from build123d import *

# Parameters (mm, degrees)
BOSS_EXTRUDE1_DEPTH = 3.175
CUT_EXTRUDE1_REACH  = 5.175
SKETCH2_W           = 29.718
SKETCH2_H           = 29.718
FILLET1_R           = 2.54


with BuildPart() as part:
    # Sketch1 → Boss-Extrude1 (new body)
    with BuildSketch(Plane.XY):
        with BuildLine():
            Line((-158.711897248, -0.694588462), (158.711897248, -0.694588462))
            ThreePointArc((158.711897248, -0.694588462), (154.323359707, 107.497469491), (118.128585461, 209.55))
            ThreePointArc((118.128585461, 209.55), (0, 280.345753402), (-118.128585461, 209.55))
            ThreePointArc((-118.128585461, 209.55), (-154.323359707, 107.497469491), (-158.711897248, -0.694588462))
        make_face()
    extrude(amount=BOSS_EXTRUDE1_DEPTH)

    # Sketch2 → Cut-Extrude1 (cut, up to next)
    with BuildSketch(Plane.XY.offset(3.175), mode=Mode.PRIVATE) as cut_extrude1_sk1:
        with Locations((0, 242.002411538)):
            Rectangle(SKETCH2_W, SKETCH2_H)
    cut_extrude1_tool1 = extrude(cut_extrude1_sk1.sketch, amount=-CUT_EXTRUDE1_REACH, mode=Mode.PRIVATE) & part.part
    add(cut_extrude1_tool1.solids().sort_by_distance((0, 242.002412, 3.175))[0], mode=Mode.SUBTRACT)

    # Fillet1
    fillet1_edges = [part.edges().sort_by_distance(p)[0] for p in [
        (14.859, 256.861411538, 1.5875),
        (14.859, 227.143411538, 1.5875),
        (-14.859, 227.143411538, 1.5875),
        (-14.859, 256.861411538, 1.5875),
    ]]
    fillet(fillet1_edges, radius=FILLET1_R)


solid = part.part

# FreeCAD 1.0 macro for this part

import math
import FreeCAD as App
import Part
import Sketcher

V = App.Vector
Q = App.Units.Quantity


def edges_at(feature, points):
    """Names of the edges that pass closest to the given points."""
    edges = feature.Shape.Edges
    near = lambda p: min(range(len(edges)), key=lambda i: edges[i].distToShape(Part.Vertex(*p))[0])
    return sorted({f"Edge{near(p) + 1}" for p in points})


def add_polygon(sketch, points):
    """Adds a closed chain of lines whose ends are joined by coincident constraints."""
    first, n = sketch.GeometryCount, len(points)
    for a, b in zip(points, points[1:] + points[:1]):
        sketch.addGeometry(Part.LineSegment(App.Vector(*a, 0), App.Vector(*b, 0)), False)
    for i in range(n):
        sketch.addConstraint(Sketcher.Constraint("Coincident", first + i, 2, first + (i + 1) % n, 1))

doc = App.newDocument("Part")
body = doc.addObject("PartDesign::Body", "Body")

sketch1 = body.newObject("Sketcher::SketchObject", "Sketch")
sketch1.AttachmentSupport = (doc.getObject("XY_Plane"), [""])
sketch1.MapMode = "FlatFace"
sketch1.addGeometry(Part.LineSegment(V(-159, -1, 0), V(159, -1, 0)), False)
sketch1.addGeometry(Part.ArcOfCircle(Part.Circle(V(-201, 39, 0), V(0, 0, 1), 362), math.radians(-6), math.radians(28)), False)
sketch1.addGeometry(Part.ArcOfCircle(Part.Circle(V(0, 146, 0), V(0, 0, 1), 134), math.radians(28), math.radians(152)), False)
sketch1.addGeometry(Part.ArcOfCircle(Part.Circle(V(201, 39, 0), V(0, 0, 1), 362), math.radians(152), math.radians(186)), False)
sketch1.addConstraint(Sketcher.Constraint("Coincident", 0, 2, 1, 1))
sketch1.addConstraint(Sketcher.Constraint("Tangent", 1, 2, 2, 1))
sketch1.addConstraint(Sketcher.Constraint("Tangent", 2, 2, 3, 1))
sketch1.addConstraint(Sketcher.Constraint("Coincident", 3, 2, 0, 1))
sketch1.addConstraint(Sketcher.Constraint("Horizontal", 0))
sketch1.addConstraint(Sketcher.Constraint("Equal", 1, 3))
sketch1.addConstraint(Sketcher.Constraint("Symmetric", 1, 3, 3, 3, -2))
sketch1.addConstraint(Sketcher.Constraint("Radius", 1, Q("14.25 in")))
sketch1.addConstraint(Sketcher.Constraint("DistanceY", -1, 1, 1, 2, Q("8.25 in")))
sketch1.addConstraint(Sketcher.Constraint("DistanceX", -1, 1, 0, 2, Q("6.2484999 in")))
sketch1.addConstraint(Sketcher.Constraint("Radius", 2, 133.951547))
sketch1.addConstraint(Sketcher.Constraint("DistanceY", 0, 2, -1, 1, 0.694588))
pad1 = body.newObject("PartDesign::Pad", "Pad")
pad1.Profile = sketch1
pad1.Length = Q("0.125 in")

sketch2 = body.newObject("Sketcher::SketchObject", "Sketch001")
sketch2.AttachmentSupport = (doc.getObject("XY_Plane"), [""])
sketch2.MapMode = "FlatFace"
sketch2.AttachmentOffset = App.Placement(V(0, 0, 0.125 * 25.4), App.Rotation())
add_polygon(sketch2, [(-15, 257), (-15, 227), (15, 227), (15, 257)])
sketch2.addConstraint(Sketcher.Constraint("Vertical", 0))
sketch2.addConstraint(Sketcher.Constraint("Horizontal", 1))
sketch2.addConstraint(Sketcher.Constraint("Vertical", 2))
sketch2.addConstraint(Sketcher.Constraint("Horizontal", 3))
sketch2.addConstraint(Sketcher.Constraint("Equal", 3, 0))
sketch2.addConstraint(Sketcher.Constraint("DistanceX", 1, 1, 1, 2, Q("1.17 in")))
sketch2.addConstraint(Sketcher.Constraint("DistanceX", 0, 2, -1, 1, Q("0.585 in")))
sketch2.addConstraint(Sketcher.Constraint("DistanceY", -1, 1, 0, 2, 227.143412))
pocket1 = body.newObject("PartDesign::Pocket", "Pocket")
pocket1.Profile = sketch2
pocket1.Type = "UpToFirst"
doc.recompute()

fillet = body.newObject("PartDesign::Fillet", "Fillet")
fillet.Base = (pocket1, edges_at(pocket1, [
    (14.859, 256.861, 1.587),
    (14.859, 227.143, 1.587),
    (-14.859, 227.143, 1.587),
    (-14.859, 256.861, 1.587),
]))
fillet.Radius = Q("0.1 in")

doc.recompute()
